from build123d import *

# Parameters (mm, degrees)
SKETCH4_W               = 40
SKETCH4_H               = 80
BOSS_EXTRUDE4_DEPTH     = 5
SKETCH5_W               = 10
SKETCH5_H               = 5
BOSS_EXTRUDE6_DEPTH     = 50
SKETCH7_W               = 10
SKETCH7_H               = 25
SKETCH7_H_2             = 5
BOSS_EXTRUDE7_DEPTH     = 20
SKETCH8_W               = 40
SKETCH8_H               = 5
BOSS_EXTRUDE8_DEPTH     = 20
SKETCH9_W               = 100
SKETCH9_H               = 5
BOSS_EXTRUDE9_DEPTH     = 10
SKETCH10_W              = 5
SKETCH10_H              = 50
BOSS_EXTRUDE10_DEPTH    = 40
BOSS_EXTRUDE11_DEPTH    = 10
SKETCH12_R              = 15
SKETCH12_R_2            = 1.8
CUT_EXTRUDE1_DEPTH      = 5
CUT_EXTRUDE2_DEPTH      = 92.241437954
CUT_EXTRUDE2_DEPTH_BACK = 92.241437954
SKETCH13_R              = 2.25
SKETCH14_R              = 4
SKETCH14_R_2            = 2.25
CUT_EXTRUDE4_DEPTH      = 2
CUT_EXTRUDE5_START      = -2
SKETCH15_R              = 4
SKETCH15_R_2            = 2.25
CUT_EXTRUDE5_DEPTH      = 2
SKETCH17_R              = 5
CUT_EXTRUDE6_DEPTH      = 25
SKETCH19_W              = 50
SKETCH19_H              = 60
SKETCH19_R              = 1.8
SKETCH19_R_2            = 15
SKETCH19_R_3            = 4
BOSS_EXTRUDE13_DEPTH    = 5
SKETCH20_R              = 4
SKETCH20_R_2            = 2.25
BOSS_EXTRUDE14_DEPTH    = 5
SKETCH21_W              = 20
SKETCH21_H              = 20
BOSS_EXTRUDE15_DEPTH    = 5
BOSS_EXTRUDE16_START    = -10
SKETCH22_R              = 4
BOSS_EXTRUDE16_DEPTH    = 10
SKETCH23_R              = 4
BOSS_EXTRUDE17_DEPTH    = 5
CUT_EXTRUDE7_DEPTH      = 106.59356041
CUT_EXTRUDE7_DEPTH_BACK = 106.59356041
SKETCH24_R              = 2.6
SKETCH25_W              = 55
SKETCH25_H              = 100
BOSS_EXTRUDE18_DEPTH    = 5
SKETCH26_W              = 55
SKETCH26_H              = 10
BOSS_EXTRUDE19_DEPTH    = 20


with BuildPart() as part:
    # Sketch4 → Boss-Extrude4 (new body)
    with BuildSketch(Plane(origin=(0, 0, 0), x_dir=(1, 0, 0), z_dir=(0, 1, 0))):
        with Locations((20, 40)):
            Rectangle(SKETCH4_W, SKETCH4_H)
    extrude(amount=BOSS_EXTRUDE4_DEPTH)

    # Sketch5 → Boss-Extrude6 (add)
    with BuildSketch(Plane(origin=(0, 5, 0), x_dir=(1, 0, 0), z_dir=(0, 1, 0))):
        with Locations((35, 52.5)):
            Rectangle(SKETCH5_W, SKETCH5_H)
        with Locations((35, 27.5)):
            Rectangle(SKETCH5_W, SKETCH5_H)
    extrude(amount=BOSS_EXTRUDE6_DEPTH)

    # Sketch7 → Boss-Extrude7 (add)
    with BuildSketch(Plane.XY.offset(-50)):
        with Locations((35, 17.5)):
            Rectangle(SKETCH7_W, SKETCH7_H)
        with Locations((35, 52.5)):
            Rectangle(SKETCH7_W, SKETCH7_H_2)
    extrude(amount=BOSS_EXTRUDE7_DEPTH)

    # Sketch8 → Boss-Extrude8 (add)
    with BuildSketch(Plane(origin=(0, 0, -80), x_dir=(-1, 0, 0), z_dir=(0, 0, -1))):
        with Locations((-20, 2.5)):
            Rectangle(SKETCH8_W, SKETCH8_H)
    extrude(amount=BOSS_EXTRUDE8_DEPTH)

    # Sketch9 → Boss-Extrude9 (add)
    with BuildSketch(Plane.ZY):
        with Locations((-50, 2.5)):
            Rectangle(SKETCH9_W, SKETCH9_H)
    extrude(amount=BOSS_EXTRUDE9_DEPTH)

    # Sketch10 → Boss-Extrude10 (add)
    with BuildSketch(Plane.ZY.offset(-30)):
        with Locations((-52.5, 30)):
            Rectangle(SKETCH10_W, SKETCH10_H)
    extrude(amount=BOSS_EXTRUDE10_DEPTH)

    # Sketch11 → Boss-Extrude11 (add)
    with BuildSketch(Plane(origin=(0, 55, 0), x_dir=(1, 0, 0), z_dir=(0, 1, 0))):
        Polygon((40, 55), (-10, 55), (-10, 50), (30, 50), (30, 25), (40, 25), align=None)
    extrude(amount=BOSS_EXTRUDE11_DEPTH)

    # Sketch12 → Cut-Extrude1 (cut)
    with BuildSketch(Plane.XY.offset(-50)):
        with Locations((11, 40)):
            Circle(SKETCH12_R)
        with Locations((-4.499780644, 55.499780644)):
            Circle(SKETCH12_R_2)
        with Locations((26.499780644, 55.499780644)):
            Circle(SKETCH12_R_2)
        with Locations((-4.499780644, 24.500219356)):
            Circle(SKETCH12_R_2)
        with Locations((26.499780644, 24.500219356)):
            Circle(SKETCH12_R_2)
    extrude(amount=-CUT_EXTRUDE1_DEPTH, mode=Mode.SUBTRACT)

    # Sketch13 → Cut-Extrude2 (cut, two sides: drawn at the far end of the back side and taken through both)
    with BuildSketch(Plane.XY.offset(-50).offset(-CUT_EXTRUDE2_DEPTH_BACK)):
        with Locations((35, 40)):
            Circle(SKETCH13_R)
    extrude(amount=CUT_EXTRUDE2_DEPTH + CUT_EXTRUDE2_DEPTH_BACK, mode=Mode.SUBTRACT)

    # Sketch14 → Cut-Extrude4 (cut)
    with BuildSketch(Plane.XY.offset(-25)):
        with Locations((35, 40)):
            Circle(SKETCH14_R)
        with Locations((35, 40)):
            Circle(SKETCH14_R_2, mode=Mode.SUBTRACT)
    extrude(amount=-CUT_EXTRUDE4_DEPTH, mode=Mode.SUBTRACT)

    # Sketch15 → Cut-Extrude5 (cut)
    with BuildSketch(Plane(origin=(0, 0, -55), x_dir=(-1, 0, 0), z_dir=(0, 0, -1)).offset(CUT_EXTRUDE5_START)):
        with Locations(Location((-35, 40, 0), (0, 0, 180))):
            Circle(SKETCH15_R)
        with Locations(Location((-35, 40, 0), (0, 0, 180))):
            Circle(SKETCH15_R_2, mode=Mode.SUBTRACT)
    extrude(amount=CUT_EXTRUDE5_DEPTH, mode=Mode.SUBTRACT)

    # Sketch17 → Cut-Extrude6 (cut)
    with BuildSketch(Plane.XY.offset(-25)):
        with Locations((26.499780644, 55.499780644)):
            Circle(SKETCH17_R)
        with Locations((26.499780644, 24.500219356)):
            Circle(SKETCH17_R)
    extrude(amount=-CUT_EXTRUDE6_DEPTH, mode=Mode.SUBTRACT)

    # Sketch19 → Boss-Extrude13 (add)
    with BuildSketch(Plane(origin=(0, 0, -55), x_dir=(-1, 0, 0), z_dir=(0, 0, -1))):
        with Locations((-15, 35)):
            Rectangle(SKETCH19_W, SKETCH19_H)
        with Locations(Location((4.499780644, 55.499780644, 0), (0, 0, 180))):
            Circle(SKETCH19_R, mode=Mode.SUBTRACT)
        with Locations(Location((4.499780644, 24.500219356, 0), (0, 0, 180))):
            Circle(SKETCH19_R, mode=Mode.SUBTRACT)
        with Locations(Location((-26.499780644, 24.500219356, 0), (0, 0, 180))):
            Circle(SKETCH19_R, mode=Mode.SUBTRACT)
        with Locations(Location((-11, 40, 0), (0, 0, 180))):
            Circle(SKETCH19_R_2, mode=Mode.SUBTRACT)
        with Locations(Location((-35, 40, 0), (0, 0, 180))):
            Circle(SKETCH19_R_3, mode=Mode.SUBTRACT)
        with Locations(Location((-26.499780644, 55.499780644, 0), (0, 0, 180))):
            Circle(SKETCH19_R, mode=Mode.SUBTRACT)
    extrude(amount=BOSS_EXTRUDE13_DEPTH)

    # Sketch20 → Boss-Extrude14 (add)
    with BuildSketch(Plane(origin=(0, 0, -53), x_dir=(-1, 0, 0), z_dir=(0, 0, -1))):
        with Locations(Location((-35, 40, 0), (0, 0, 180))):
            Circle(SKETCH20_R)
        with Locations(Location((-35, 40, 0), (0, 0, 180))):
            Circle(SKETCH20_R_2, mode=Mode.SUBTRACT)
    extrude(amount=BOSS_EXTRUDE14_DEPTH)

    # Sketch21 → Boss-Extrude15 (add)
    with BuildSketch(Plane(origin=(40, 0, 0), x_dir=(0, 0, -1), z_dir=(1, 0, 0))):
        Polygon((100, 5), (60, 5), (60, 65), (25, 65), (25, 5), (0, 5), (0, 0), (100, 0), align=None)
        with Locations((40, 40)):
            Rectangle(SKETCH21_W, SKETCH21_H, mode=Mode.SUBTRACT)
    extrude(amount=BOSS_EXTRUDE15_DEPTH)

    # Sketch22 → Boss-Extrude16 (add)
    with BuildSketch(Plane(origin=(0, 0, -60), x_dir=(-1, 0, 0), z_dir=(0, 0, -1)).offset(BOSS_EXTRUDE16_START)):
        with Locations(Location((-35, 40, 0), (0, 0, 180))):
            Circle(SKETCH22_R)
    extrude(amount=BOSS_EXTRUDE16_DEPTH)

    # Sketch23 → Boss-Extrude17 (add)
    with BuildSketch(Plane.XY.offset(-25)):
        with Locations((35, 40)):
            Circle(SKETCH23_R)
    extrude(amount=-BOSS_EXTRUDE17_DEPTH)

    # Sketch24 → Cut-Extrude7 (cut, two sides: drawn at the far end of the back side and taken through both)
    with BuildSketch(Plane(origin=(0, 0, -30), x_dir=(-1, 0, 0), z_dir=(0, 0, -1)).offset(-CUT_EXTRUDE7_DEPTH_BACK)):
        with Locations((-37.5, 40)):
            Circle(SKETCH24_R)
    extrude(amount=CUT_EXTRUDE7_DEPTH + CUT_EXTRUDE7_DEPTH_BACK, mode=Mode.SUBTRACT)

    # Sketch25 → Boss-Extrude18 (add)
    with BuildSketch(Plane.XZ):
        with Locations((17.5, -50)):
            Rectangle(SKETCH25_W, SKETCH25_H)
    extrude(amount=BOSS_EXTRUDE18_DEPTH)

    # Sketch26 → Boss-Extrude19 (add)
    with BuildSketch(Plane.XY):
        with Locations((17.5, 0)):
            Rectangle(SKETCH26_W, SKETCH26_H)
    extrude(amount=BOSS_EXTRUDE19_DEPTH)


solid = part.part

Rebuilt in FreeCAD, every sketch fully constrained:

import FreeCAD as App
import Part
import Sketcher


def add_polygon(sketch, points):
    """Adds a closed chain of lines whose ends are joined by coincident constraints."""
    first, n = sketch.GeometryCount, len(points)
    for a, b in zip(points, points[1:] + points[:1]):
        sketch.addGeometry(Part.LineSegment(App.Vector(*a, 0), App.Vector(*b, 0)), False)
    for i in range(n):
        sketch.addConstraint(Sketcher.Constraint("Coincident", first + i, 2, first + (i + 1) % n, 1))

doc = App.newDocument("Part")
body = doc.addObject("PartDesign::Body", "Body")

# Sketch on XZ plane
sketch1 = doc.addObject("Sketcher::SketchObject", "Sketch")
body.addObject(sketch1)
sketch1.AttachmentSupport = (doc.XZ_Plane, [""])
sketch1.MapMode = "FlatFace"
add_polygon(sketch1, [(0, -80), (0, 0), (40, 0), (40, -80)])  # lines 0-3
sketch1.addConstraint([
    Sketcher.Constraint("Vertical", 0),
    Sketcher.Constraint("Horizontal", 1),
    Sketcher.Constraint("Vertical", 2),
    Sketcher.Constraint("Horizontal", 3),
    Sketcher.Constraint("Coincident", 0, 2, -1, 1),
    Sketcher.Constraint("DistanceX", 1, 1, 1, 2, 40.0),
    Sketcher.Constraint("DistanceY", 0, 1, 0, 2, 80.0),
])
pad1 = doc.addObject("PartDesign::Pad", "Pad")
body.addObject(pad1)
pad1.Profile = sketch1
pad1.Length = 5
pad1.Reversed = True

# Sketch on XZ plane
sketch2 = doc.addObject("Sketcher::SketchObject", "Sketch001")
body.addObject(sketch2)
sketch2.AttachmentSupport = (doc.XZ_Plane, [""])
sketch2.MapMode = "FlatFace"
sketch2.AttachmentOffset = App.Placement(App.Vector(0, 0, -5), App.Rotation())
add_polygon(sketch2, [(30, -55), (30, -50), (40, -50), (40, -55)])  # lines 0-3
add_polygon(sketch2, [(30, -30), (30, -25), (40, -25), (40, -30)])  # lines 4-7
sketch2.addConstraint([
    Sketcher.Constraint("Vertical", 0),
    Sketcher.Constraint("Horizontal", 1),
    Sketcher.Constraint("Vertical", 2),
    Sketcher.Constraint("Horizontal", 3),
    Sketcher.Constraint("Vertical", 4),
    Sketcher.Constraint("Horizontal", 5),
    Sketcher.Constraint("Vertical", 6),
    Sketcher.Constraint("Horizontal", 7),
    Sketcher.Constraint("Vertical", 3, 2, 4, 2),
    Sketcher.Constraint("Vertical", 2, 2, 5, 2),
    Sketcher.Constraint("Equal", 2, 4),
    Sketcher.Constraint("DistanceX", 1, 1, 1, 2, 10.0),
    Sketcher.Constraint("DistanceY", 0, 1, 0, 2, 5.0),
    Sketcher.Constraint("DistanceX", -1, 1, 0, 2, 30.0),
    Sketcher.Constraint("DistanceY", 0, 2, -1, 1, 50.0),
    Sketcher.Constraint("DistanceY", 4, 2, -1, 1, 25.0),
])
pad2 = doc.addObject("PartDesign::Pad", "Pad001")
body.addObject(pad2)
pad2.Profile = sketch2
pad2.Length = 50
pad2.Reversed = True

# Sketch on XY plane
sketch3 = doc.addObject("Sketcher::SketchObject", "Sketch002")
body.addObject(sketch3)
sketch3.AttachmentSupport = (doc.XY_Plane, [""])
sketch3.MapMode = "FlatFace"
sketch3.AttachmentOffset = App.Placement(App.Vector(0, 0, -50), App.Rotation())
add_polygon(sketch3, [(30, 30), (30, 5), (40, 5), (40, 30)])  # lines 0-3
add_polygon(sketch3, [(30, 55), (30, 50), (40, 50), (40, 55)])  # lines 4-7
sketch3.addConstraint([
    Sketcher.Constraint("Vertical", 0),
    Sketcher.Constraint("Horizontal", 1),
    Sketcher.Constraint("Vertical", 2),
    Sketcher.Constraint("Horizontal", 3),
    Sketcher.Constraint("Vertical", 4),
    Sketcher.Constraint("Horizontal", 5),
    Sketcher.Constraint("Vertical", 6),
    Sketcher.Constraint("Horizontal", 7),
    Sketcher.Constraint("Vertical", 3, 2, 4, 2),
    Sketcher.Constraint("Vertical", 2, 2, 5, 2),
    Sketcher.Constraint("DistanceX", 1, 1, 1, 2, 10.0),
    Sketcher.Constraint("DistanceY", 0, 2, 0, 1, 25.0),
    Sketcher.Constraint("DistanceY", 4, 2, 4, 1, 5.0),
    Sketcher.Constraint("DistanceX", -1, 1, 0, 2, 30.0),
    Sketcher.Constraint("DistanceY", -1, 1, 0, 2, 5.0),
    Sketcher.Constraint("DistanceY", -1, 1, 4, 2, 50.0),
])
pad3 = doc.addObject("PartDesign::Pad", "Pad002")
body.addObject(pad3)
pad3.Profile = sketch3
pad3.Length = 20

# Sketch on XY plane
sketch4 = doc.addObject("Sketcher::SketchObject", "Sketch003")
body.addObject(sketch4)
sketch4.AttachmentSupport = (doc.XY_Plane, [""])
sketch4.MapMode = "FlatFace"
sketch4.AttachmentOffset = App.Placement(App.Vector(0, 0, -80), App.Rotation())
add_polygon(sketch4, [(40, 5), (40, 0), (0, 0), (0, 5)])  # lines 0-3
sketch4.addConstraint([
    Sketcher.Constraint("Vertical", 0),
    Sketcher.Constraint("Horizontal", 1),
    Sketcher.Constraint("Vertical", 2),
    Sketcher.Constraint("Horizontal", 3),
    Sketcher.Constraint("Coincident", 1, 2, -1, 1),
    Sketcher.Constraint("DistanceX", 1, 2, 1, 1, 40.0),
    Sketcher.Constraint("DistanceY", 0, 2, 0, 1, 5.0),
])
pad4 = doc.addObject("PartDesign::Pad", "Pad003")
body.addObject(pad4)
pad4.Profile = sketch4
pad4.Length = 20
pad4.Reversed = True

# Sketch on YZ plane
sketch5 = doc.addObject("Sketcher::SketchObject", "Sketch004")
body.addObject(sketch5)
sketch5.AttachmentSupport = (doc.YZ_Plane, [""])
sketch5.MapMode = "FlatFace"
add_polygon(sketch5, [(5, -100), (0, -100), (0, 0), (5, 0)])  # lines 0-3
sketch5.addConstraint([
    Sketcher.Constraint("Horizontal", 0),
    Sketcher.Constraint("Vertical", 1),
    Sketcher.Constraint("Horizontal", 2),
    Sketcher.Constraint("Vertical", 3),
    Sketcher.Constraint("Coincident", 1, 2, -1, 1),
    Sketcher.Constraint("DistanceX", 0, 2, 0, 1, 5.0),
    Sketcher.Constraint("DistanceY", 1, 1, 1, 2, 100.0),
])
pad5 = doc.addObject("PartDesign::Pad", "Pad004")
body.addObject(pad5)
pad5.Profile = sketch5
pad5.Length = 10
pad5.Reversed = True

# Sketch on YZ plane
sketch6 = doc.addObject("Sketcher::SketchObject", "Sketch005")
body.addObject(sketch6)
sketch6.AttachmentSupport = (doc.YZ_Plane, [""])
sketch6.MapMode = "FlatFace"
sketch6.AttachmentOffset = App.Placement(App.Vector(0, 0, 30), App.Rotation())
add_polygon(sketch6, [(55, -55), (5, -55), (5, -50), (55, -50)])  # lines 0-3
sketch6.addConstraint([
    Sketcher.Constraint("Horizontal", 0),
    Sketcher.Constraint("Vertical", 1),
    Sketcher.Constraint("Horizontal", 2),
    Sketcher.Constraint("Vertical", 3),
    Sketcher.Constraint("DistanceX", 0, 2, 0, 1, 50.0),
    Sketcher.Constraint("DistanceY", 1, 1, 1, 2, 5.0),
    Sketcher.Constraint("DistanceX", -1, 1, 0, 2, 5.0),
    Sketcher.Constraint("DistanceY", 0, 2, -1, 1, 55.0),
])
pad6 = doc.addObject("PartDesign::Pad", "Pad005")
body.addObject(pad6)
pad6.Profile = sketch6
pad6.Length = 40
pad6.Reversed = True

# Sketch on XZ plane
sketch7 = doc.addObject("Sketcher::SketchObject", "Sketch006")
body.addObject(sketch7)
sketch7.AttachmentSupport = (doc.XZ_Plane, [""])
sketch7.MapMode = "FlatFace"
sketch7.AttachmentOffset = App.Placement(App.Vector(0, 0, -55), App.Rotation())
add_polygon(sketch7, [(40, -55), (-10, -55), (-10, -50), (30, -50), (30, -25), (40, -25)])  # lines 0-5
sketch7.addConstraint([
    Sketcher.Constraint("Horizontal", 0),
    Sketcher.Constraint("Vertical", 1),
    Sketcher.Constraint("Horizontal", 2),
    Sketcher.Constraint("Vertical", 3),
    Sketcher.Constraint("Horizontal", 4),
    Sketcher.Constraint("Vertical", 5),
    Sketcher.Constraint("DistanceX", 0, 2, 0, 1, 50.0),
    Sketcher.Constraint("DistanceX", 2, 1, 2, 2, 40.0),
    Sketcher.Constraint("DistanceY", 1, 1, 1, 2, 5.0),
    Sketcher.Constraint("DistanceY", 3, 1, 3, 2, 25.0),
    Sketcher.Constraint("DistanceX", 0, 2, -1, 1, 10.0),
    Sketcher.Constraint("DistanceY", 0, 2, -1, 1, 55.0),
])
pad7 = doc.addObject("PartDesign::Pad", "Pad006")
body.addObject(pad7)
pad7.Profile = sketch7
pad7.Length = 10
pad7.Reversed = True

# Sketch on XY plane
sketch8 = doc.addObject("Sketcher::SketchObject", "Sketch007")
body.addObject(sketch8)
sketch8.AttachmentSupport = (doc.XY_Plane, [""])
sketch8.MapMode = "FlatFace"
sketch8.AttachmentOffset = App.Placement(App.Vector(0, 0, -50), App.Rotation())
sketch8.addGeometry([
    Part.Circle(App.Vector(11, 40, 0), App.Vector(0, 0, 1), 15),  # 0
    Part.Circle(App.Vector(-4.499781, 55.499781, 0), App.Vector(0, 0, 1), 1.8),  # 1
    Part.Circle(App.Vector(26.499781, 55.499781, 0), App.Vector(0, 0, 1), 1.8),  # 2
    Part.Circle(App.Vector(-4.499781, 24.500219, 0), App.Vector(0, 0, 1), 1.8),  # 3
    Part.Circle(App.Vector(26.499781, 24.500219, 0), App.Vector(0, 0, 1), 1.8),  # 4
], False)
sketch8.addConstraint([
    Sketcher.Constraint("Equal", 1, 2),
    Sketcher.Constraint("Equal", 2, 3),
    Sketcher.Constraint("Equal", 3, 4),
    Sketcher.Constraint("Horizontal", 1, 3, 2, 3),
    Sketcher.Constraint("Horizontal", 3, 3, 4, 3),
    Sketcher.Constraint("Vertical", 1, 3, 3, 3),
    Sketcher.Constraint("Vertical", 2, 3, 4, 3),
    Sketcher.Constraint("Diameter", 0, 30.0),
    Sketcher.Constraint("Diameter", 1, 3.6),
    Sketcher.Constraint("DistanceX", -1, 1, 0, 3, 11.0),
    Sketcher.Constraint("DistanceY", -1, 1, 0, 3, 40.0),
    Sketcher.Constraint("DistanceX", 1, 3, -1, 1, 4.499781),
    Sketcher.Constraint("DistanceY", -1, 1, 1, 3, 55.499781),
    Sketcher.Constraint("DistanceX", -1, 1, 2, 3, 26.499781),
    Sketcher.Constraint("DistanceY", -1, 1, 3, 3, 24.500219),
])
pocket1 = doc.addObject("PartDesign::Pocket", "Pocket")
body.addObject(pocket1)
pocket1.Profile = sketch8
pocket1.Length = 5

# Sketch on XY plane
sketch9 = doc.addObject("Sketcher::SketchObject", "Sketch008")
body.addObject(sketch9)
sketch9.AttachmentSupport = (doc.XY_Plane, [""])
sketch9.MapMode = "FlatFace"
sketch9.AttachmentOffset = App.Placement(App.Vector(0, 0, -50), App.Rotation())
sketch9.addGeometry(Part.Circle(App.Vector(35, 40, 0), App.Vector(0, 0, 1), 2.25), False)
sketch9.addConstraint([
    Sketcher.Constraint("Diameter", 0, 4.5),
    Sketcher.Constraint("DistanceX", -1, 1, 0, 3, 35.0),
    Sketcher.Constraint("DistanceY", -1, 1, 0, 3, 40.0),
])
pocket2 = doc.addObject("PartDesign::Pocket", "Pocket001")
body.addObject(pocket2)
pocket2.Profile = sketch9
pocket2.Type = "ThroughAll"
pocket2.Midplane = True

# Sketch on XY plane
sketch10 = doc.addObject("Sketcher::SketchObject", "Sketch009")
body.addObject(sketch10)
sketch10.AttachmentSupport = (doc.XY_Plane, [""])
sketch10.MapMode = "FlatFace"
sketch10.AttachmentOffset = App.Placement(App.Vector(0, 0, -25), App.Rotation())
sketch10.addGeometry([
    Part.Circle(App.Vector(35, 40, 0), App.Vector(0, 0, 1), 4),
    Part.Circle(App.Vector(35, 40, 0), App.Vector(0, 0, 1), 2.25),
], False)
sketch10.addConstraint([
    Sketcher.Constraint("Coincident", 1, 3, 0, 3),
    Sketcher.Constraint("Diameter", 0, 8.0),
    Sketcher.Constraint("Diameter", 1, 4.5),
    Sketcher.Constraint("DistanceX", -1, 1, 0, 3, 35.0),
    Sketcher.Constraint("DistanceY", -1, 1, 0, 3, 40.0),
])
pocket3 = doc.addObject("PartDesign::Pocket", "Pocket002")
body.addObject(pocket3)
pocket3.Profile = sketch10
pocket3.Length = 2

# Sketch on XY plane
sketch11 = doc.addObject("Sketcher::SketchObject", "Sketch010")
body.addObject(sketch11)
sketch11.AttachmentSupport = (doc.XY_Plane, [""])
sketch11.MapMode = "FlatFace"
sketch11.AttachmentOffset = App.Placement(App.Vector(0, 0, -53), App.Rotation())
sketch11.addGeometry([
    Part.Circle(App.Vector(35, 40, 0), App.Vector(0, 0, 1), 4),
    Part.Circle(App.Vector(35, 40, 0), App.Vector(0, 0, 1), 2.25),
], False)
sketch11.addConstraint([
    Sketcher.Constraint("Coincident", 1, 3, 0, 3),
    Sketcher.Constraint("Diameter", 0, 8.0),
    Sketcher.Constraint("Diameter", 1, 4.5),
    Sketcher.Constraint("DistanceX", -1, 1, 0, 3, 35.0),
    Sketcher.Constraint("DistanceY", -1, 1, 0, 3, 40.0),
])
pocket4 = doc.addObject("PartDesign::Pocket", "Pocket003")
body.addObject(pocket4)
pocket4.Profile = sketch11
pocket4.Length = 2

# Sketch on XY plane
sketch12 = doc.addObject("Sketcher::SketchObject", "Sketch011")
body.addObject(sketch12)
sketch12.AttachmentSupport = (doc.XY_Plane, [""])
sketch12.MapMode = "FlatFace"
sketch12.AttachmentOffset = App.Placement(App.Vector(0, 0, -25), App.Rotation())
sketch12.addGeometry([
    Part.Circle(App.Vector(26.499781, 55.499781, 0), App.Vector(0, 0, 1), 5),
    Part.Circle(App.Vector(26.499781, 24.500219, 0), App.Vector(0, 0, 1), 5),
], False)
sketch12.addConstraint([
    Sketcher.Constraint("Equal", 0, 1),
    Sketcher.Constraint("Vertical", 0, 3, 1, 3),
    Sketcher.Constraint("Diameter", 0, 10.0),
    Sketcher.Constraint("DistanceX", -1, 1, 0, 3, 26.499781),
    Sketcher.Constraint("DistanceY", -1, 1, 0, 3, 55.499781),
    Sketcher.Constraint("DistanceY", -1, 1, 1, 3, 24.500219),
])
pocket5 = doc.addObject("PartDesign::Pocket", "Pocket004")
body.addObject(pocket5)
pocket5.Profile = sketch12
pocket5.Length = 25

# Sketch on XY plane
sketch13 = doc.addObject("Sketcher::SketchObject", "Sketch012")
body.addObject(sketch13)
sketch13.AttachmentSupport = (doc.XY_Plane, [""])
sketch13.MapMode = "FlatFace"
sketch13.AttachmentOffset = App.Placement(App.Vector(0, 0, -55), App.Rotation())
add_polygon(sketch13, [(40, 65), (40, 5), (-10, 5), (-10, 65)])  # lines 0-3
sketch13.addGeometry(Part.Circle(App.Vector(26.499781, 24.500219, 0), App.Vector(0, 0, 1), 1.8), False)  # 4
sketch13.addGeometry(Part.Circle(App.Vector(-4.499781, 24.500219, 0), App.Vector(0, 0, 1), 1.8), False)  # 5
sketch13.addGeometry(Part.Circle(App.Vector(35, 40, 0), App.Vector(0, 0, 1), 4), False)  # 6
sketch13.addGeometry(Part.Circle(App.Vector(26.499781, 55.499781, 0), App.Vector(0, 0, 1), 1.8), False)  # 7
sketch13.addGeometry(Part.Circle(App.Vector(11, 40, 0), App.Vector(0, 0, 1), 15), False)  # 8
sketch13.addGeometry(Part.Circle(App.Vector(-4.499781, 55.499781, 0), App.Vector(0, 0, 1), 1.8), False)  # 9
sketch13.addConstraint([
    Sketcher.Constraint("Vertical", 0),
    Sketcher.Constraint("Horizontal", 1),
    Sketcher.Constraint("Vertical", 2),
    Sketcher.Constraint("Horizontal", 3),
    Sketcher.Constraint("Equal", 4, 5),
    Sketcher.Constraint("Equal", 5, 7),
    Sketcher.Constraint("Equal", 7, 9),
    Sketcher.Constraint("Horizontal", 4, 3, 5, 3),
    Sketcher.Constraint("Horizontal", 6, 3, 8, 3),
    Sketcher.Constraint("Horizontal", 7, 3, 9, 3),
    Sketcher.Constraint("Vertical", 4, 3, 7, 3),
    Sketcher.Constraint("Vertical", 5, 3, 9, 3),
    Sketcher.Constraint("Diameter", 6, 8.0),
    Sketcher.Constraint("Diameter", 8, 30.0),
    Sketcher.Constraint("Diameter", 4, 3.6),
    Sketcher.Constraint("DistanceX", 1, 2, 1, 1, 50.0),
    Sketcher.Constraint("DistanceY", 0, 2, 0, 1, 60.0),
    Sketcher.Constraint("DistanceX", -1, 1, 6, 3, 35.0),
    Sketcher.Constraint("DistanceY", -1, 1, 6, 3, 40.0),
    Sketcher.Constraint("DistanceX", -1, 1, 8, 3, 11.0),
    Sketcher.Constraint("DistanceX", -1, 1, 0, 2, 40.0),
    Sketcher.Constraint("DistanceY", -1, 1, 0, 2, 5.0),
    Sketcher.Constraint("DistanceX", -1, 1, 4, 3, 26.499781),
    Sketcher.Constraint("DistanceY", -1, 1, 4, 3, 24.500219),
    Sketcher.Constraint("DistanceX", 5, 3, -1, 1, 4.499781),
    Sketcher.Constraint("DistanceY", -1, 1, 7, 3, 55.499781),
])
pad8 = doc.addObject("PartDesign::Pad", "Pad007")
body.addObject(pad8)
pad8.Profile = sketch13
pad8.Length = 5
pad8.Reversed = True

# Sketch on XY plane
sketch14 = doc.addObject("Sketcher::SketchObject", "Sketch013")
body.addObject(sketch14)
sketch14.AttachmentSupport = (doc.XY_Plane, [""])
sketch14.MapMode = "FlatFace"
sketch14.AttachmentOffset = App.Placement(App.Vector(0, 0, -53), App.Rotation())
sketch14.addGeometry([
    Part.Circle(App.Vector(35, 40, 0), App.Vector(0, 0, 1), 4),
    Part.Circle(App.Vector(35, 40, 0), App.Vector(0, 0, 1), 2.25),
], False)
sketch14.addConstraint([
    Sketcher.Constraint("Coincident", 1, 3, 0, 3),
    Sketcher.Constraint("Diameter", 0, 8.0),
    Sketcher.Constraint("Diameter", 1, 4.5),
    Sketcher.Constraint("DistanceX", -1, 1, 0, 3, 35.0),
    Sketcher.Constraint("DistanceY", -1, 1, 0, 3, 40.0),
])
pad9 = doc.addObject("PartDesign::Pad", "Pad008")
body.addObject(pad9)
pad9.Profile = sketch14
pad9.Length = 5
pad9.Reversed = True

# Sketch on YZ plane
sketch15 = doc.addObject("Sketcher::SketchObject", "Sketch014")
body.addObject(sketch15)
sketch15.AttachmentSupport = (doc.YZ_Plane, [""])
sketch15.MapMode = "FlatFace"
sketch15.AttachmentOffset = App.Placement(App.Vector(0, 0, 40), App.Rotation())
add_polygon(sketch15, [(5, -100), (5, -60), (65, -60), (65, -25), (5, -25), (5, 0), (0, 0), (0, -100)])  # lines 0-7
add_polygon(sketch15, [(30, -50), (30, -30), (50, -30), (50, -50)])  # lines 8-11
sketch15.addConstraint([
    Sketcher.Constraint("Vertical", 0),
    Sketcher.Constraint("Horizontal", 1),
    Sketcher.Constraint("Vertical", 2),
    Sketcher.Constraint("Horizontal", 3),
    Sketcher.Constraint("Vertical", 4),
    Sketcher.Constraint("Horizontal", 5),
    Sketcher.Constraint("Vertical", 6),
    Sketcher.Constraint("Horizontal", 7),
    Sketcher.Constraint("Vertical", 8),
    Sketcher.Constraint("Horizontal", 9),
    Sketcher.Constraint("Vertical", 10),
    Sketcher.Constraint("Horizontal", 11),
    Sketcher.Constraint("Coincident", 5, 2, -1, 1),
    Sketcher.Constraint("Vertical", 0, 2, 3, 2),
    Sketcher.Constraint("Equal", 11, 8),
    Sketcher.Constraint("DistanceX", 1, 1, 1, 2, 60.0),
    Sketcher.Constraint("DistanceX", 5, 2, 5, 1, 5.0),
    Sketcher.Constraint("DistanceX", 9, 1, 9, 2, 20.0),
    Sketcher.Constraint("DistanceY", 0, 1, 0, 2, 40.0),
    Sketcher.Constraint("DistanceY", 2, 1, 2, 2, 35.0),
    Sketcher.Constraint("DistanceY", 4, 1, 4, 2, 25.0),
    Sketcher.Constraint("DistanceX", -1, 1, 8, 2, 30.0),
    Sketcher.Constraint("DistanceY", 8, 2, -1, 1, 30.0),
])
pad10 = doc.addObject("PartDesign::Pad", "Pad009")
body.addObject(pad10)
pad10.Profile = sketch15
pad10.Length = 5

# Sketch on XY plane
sketch16 = doc.addObject("Sketcher::SketchObject", "Sketch015")
body.addObject(sketch16)
sketch16.AttachmentSupport = (doc.XY_Plane, [""])
sketch16.MapMode = "FlatFace"
sketch16.AttachmentOffset = App.Placement(App.Vector(0, 0, -50), App.Rotation())
sketch16.addGeometry(Part.Circle(App.Vector(35, 40, 0), App.Vector(0, 0, 1), 4), False)
sketch16.addConstraint([
    Sketcher.Constraint("Diameter", 0, 8.0),
    Sketcher.Constraint("DistanceX", -1, 1, 0, 3, 35.0),
    Sketcher.Constraint("DistanceY", -1, 1, 0, 3, 40.0),
])
pad11 = doc.addObject("PartDesign::Pad", "Pad010")
body.addObject(pad11)
pad11.Profile = sketch16
pad11.Length = 10
pad11.Reversed = True

# Sketch on XY plane
sketch17 = doc.addObject("Sketcher::SketchObject", "Sketch016")
body.addObject(sketch17)
sketch17.AttachmentSupport = (doc.XY_Plane, [""])
sketch17.MapMode = "FlatFace"
sketch17.AttachmentOffset = App.Placement(App.Vector(0, 0, -25), App.Rotation())
sketch17.addGeometry(Part.Circle(App.Vector(35, 40, 0), App.Vector(0, 0, 1), 4), False)
sketch17.addConstraint([
    Sketcher.Constraint("Diameter", 0, 8.0),
    Sketcher.Constraint("DistanceX", -1, 1, 0, 3, 35.0),
    Sketcher.Constraint("DistanceY", -1, 1, 0, 3, 40.0),
])
pad12 = doc.addObject("PartDesign::Pad", "Pad011")
body.addObject(pad12)
pad12.Profile = sketch17
pad12.Length = 5
pad12.Reversed = True

# Sketch on XY plane
sketch18 = doc.addObject("Sketcher::SketchObject", "Sketch017")
body.addObject(sketch18)
sketch18.AttachmentSupport = (doc.XY_Plane, [""])
sketch18.MapMode = "FlatFace"
sketch18.AttachmentOffset = App.Placement(App.Vector(0, 0, -30), App.Rotation())
sketch18.addGeometry(Part.Circle(App.Vector(37.5, 40, 0), App.Vector(0, 0, 1), 2.6), False)
sketch18.addConstraint([
    Sketcher.Constraint("Diameter", 0, 5.2),
    Sketcher.Constraint("DistanceY", -1, 1, 0, 3, 40.0),
    Sketcher.Constraint("DistanceX", -1, 1, 0, 3, 37.5),
])
pocket6 = doc.addObject("PartDesign::Pocket", "Pocket005")
body.addObject(pocket6)
pocket6.Profile = sketch18
pocket6.Type = "ThroughAll"
pocket6.Midplane = True

# Sketch on XZ plane
sketch19 = doc.addObject("Sketcher::SketchObject", "Sketch018")
body.addObject(sketch19)
sketch19.AttachmentSupport = (doc.XZ_Plane, [""])
sketch19.MapMode = "FlatFace"
add_polygon(sketch19, [(-10, 0), (-10, -100), (45, -100), (45, 0)])  # lines 0-3
sketch19.addConstraint([
    Sketcher.Constraint("Vertical", 0),
    Sketcher.Constraint("Horizontal", 1),
    Sketcher.Constraint("Vertical", 2),
    Sketcher.Constraint("Horizontal", 3),
    Sketcher.Constraint("PointOnObject", 2, 2, -1),
    Sketcher.Constraint("DistanceX", 1, 1, 1, 2, 55.0),
    Sketcher.Constraint("DistanceY", 0, 2, 0, 1, 100.0),
    Sketcher.Constraint("DistanceX", 0, 2, -1, 1, 10.0),
])
pad13 = doc.addObject("PartDesign::Pad", "Pad012")
body.addObject(pad13)
pad13.Profile = sketch19
pad13.Length = 5

# Sketch on XY plane
sketch20 = doc.addObject("Sketcher::SketchObject", "Sketch019")
body.addObject(sketch20)
sketch20.AttachmentSupport = (doc.XY_Plane, [""])
sketch20.MapMode = "FlatFace"
add_polygon(sketch20, [(-10, 5), (-10, -5), (45, -5), (45, 5)])  # lines 0-3
sketch20.addConstraint([
    Sketcher.Constraint("Vertical", 0),
    Sketcher.Constraint("Horizontal", 1),
    Sketcher.Constraint("Vertical", 2),
    Sketcher.Constraint("Horizontal", 3),
    Sketcher.Constraint("DistanceX", 1, 1, 1, 2, 55.0),
    Sketcher.Constraint("DistanceY", 0, 2, 0, 1, 10.0),
    Sketcher.Constraint("DistanceX", 0, 2, -1, 1, 10.0),
    Sketcher.Constraint("DistanceY", 0, 2, -1, 1, 5.0),
])
pad14 = doc.addObject("PartDesign::Pad", "Pad013")
body.addObject(pad14)
pad14.Profile = sketch20
pad14.Length = 20

doc.recompute()
